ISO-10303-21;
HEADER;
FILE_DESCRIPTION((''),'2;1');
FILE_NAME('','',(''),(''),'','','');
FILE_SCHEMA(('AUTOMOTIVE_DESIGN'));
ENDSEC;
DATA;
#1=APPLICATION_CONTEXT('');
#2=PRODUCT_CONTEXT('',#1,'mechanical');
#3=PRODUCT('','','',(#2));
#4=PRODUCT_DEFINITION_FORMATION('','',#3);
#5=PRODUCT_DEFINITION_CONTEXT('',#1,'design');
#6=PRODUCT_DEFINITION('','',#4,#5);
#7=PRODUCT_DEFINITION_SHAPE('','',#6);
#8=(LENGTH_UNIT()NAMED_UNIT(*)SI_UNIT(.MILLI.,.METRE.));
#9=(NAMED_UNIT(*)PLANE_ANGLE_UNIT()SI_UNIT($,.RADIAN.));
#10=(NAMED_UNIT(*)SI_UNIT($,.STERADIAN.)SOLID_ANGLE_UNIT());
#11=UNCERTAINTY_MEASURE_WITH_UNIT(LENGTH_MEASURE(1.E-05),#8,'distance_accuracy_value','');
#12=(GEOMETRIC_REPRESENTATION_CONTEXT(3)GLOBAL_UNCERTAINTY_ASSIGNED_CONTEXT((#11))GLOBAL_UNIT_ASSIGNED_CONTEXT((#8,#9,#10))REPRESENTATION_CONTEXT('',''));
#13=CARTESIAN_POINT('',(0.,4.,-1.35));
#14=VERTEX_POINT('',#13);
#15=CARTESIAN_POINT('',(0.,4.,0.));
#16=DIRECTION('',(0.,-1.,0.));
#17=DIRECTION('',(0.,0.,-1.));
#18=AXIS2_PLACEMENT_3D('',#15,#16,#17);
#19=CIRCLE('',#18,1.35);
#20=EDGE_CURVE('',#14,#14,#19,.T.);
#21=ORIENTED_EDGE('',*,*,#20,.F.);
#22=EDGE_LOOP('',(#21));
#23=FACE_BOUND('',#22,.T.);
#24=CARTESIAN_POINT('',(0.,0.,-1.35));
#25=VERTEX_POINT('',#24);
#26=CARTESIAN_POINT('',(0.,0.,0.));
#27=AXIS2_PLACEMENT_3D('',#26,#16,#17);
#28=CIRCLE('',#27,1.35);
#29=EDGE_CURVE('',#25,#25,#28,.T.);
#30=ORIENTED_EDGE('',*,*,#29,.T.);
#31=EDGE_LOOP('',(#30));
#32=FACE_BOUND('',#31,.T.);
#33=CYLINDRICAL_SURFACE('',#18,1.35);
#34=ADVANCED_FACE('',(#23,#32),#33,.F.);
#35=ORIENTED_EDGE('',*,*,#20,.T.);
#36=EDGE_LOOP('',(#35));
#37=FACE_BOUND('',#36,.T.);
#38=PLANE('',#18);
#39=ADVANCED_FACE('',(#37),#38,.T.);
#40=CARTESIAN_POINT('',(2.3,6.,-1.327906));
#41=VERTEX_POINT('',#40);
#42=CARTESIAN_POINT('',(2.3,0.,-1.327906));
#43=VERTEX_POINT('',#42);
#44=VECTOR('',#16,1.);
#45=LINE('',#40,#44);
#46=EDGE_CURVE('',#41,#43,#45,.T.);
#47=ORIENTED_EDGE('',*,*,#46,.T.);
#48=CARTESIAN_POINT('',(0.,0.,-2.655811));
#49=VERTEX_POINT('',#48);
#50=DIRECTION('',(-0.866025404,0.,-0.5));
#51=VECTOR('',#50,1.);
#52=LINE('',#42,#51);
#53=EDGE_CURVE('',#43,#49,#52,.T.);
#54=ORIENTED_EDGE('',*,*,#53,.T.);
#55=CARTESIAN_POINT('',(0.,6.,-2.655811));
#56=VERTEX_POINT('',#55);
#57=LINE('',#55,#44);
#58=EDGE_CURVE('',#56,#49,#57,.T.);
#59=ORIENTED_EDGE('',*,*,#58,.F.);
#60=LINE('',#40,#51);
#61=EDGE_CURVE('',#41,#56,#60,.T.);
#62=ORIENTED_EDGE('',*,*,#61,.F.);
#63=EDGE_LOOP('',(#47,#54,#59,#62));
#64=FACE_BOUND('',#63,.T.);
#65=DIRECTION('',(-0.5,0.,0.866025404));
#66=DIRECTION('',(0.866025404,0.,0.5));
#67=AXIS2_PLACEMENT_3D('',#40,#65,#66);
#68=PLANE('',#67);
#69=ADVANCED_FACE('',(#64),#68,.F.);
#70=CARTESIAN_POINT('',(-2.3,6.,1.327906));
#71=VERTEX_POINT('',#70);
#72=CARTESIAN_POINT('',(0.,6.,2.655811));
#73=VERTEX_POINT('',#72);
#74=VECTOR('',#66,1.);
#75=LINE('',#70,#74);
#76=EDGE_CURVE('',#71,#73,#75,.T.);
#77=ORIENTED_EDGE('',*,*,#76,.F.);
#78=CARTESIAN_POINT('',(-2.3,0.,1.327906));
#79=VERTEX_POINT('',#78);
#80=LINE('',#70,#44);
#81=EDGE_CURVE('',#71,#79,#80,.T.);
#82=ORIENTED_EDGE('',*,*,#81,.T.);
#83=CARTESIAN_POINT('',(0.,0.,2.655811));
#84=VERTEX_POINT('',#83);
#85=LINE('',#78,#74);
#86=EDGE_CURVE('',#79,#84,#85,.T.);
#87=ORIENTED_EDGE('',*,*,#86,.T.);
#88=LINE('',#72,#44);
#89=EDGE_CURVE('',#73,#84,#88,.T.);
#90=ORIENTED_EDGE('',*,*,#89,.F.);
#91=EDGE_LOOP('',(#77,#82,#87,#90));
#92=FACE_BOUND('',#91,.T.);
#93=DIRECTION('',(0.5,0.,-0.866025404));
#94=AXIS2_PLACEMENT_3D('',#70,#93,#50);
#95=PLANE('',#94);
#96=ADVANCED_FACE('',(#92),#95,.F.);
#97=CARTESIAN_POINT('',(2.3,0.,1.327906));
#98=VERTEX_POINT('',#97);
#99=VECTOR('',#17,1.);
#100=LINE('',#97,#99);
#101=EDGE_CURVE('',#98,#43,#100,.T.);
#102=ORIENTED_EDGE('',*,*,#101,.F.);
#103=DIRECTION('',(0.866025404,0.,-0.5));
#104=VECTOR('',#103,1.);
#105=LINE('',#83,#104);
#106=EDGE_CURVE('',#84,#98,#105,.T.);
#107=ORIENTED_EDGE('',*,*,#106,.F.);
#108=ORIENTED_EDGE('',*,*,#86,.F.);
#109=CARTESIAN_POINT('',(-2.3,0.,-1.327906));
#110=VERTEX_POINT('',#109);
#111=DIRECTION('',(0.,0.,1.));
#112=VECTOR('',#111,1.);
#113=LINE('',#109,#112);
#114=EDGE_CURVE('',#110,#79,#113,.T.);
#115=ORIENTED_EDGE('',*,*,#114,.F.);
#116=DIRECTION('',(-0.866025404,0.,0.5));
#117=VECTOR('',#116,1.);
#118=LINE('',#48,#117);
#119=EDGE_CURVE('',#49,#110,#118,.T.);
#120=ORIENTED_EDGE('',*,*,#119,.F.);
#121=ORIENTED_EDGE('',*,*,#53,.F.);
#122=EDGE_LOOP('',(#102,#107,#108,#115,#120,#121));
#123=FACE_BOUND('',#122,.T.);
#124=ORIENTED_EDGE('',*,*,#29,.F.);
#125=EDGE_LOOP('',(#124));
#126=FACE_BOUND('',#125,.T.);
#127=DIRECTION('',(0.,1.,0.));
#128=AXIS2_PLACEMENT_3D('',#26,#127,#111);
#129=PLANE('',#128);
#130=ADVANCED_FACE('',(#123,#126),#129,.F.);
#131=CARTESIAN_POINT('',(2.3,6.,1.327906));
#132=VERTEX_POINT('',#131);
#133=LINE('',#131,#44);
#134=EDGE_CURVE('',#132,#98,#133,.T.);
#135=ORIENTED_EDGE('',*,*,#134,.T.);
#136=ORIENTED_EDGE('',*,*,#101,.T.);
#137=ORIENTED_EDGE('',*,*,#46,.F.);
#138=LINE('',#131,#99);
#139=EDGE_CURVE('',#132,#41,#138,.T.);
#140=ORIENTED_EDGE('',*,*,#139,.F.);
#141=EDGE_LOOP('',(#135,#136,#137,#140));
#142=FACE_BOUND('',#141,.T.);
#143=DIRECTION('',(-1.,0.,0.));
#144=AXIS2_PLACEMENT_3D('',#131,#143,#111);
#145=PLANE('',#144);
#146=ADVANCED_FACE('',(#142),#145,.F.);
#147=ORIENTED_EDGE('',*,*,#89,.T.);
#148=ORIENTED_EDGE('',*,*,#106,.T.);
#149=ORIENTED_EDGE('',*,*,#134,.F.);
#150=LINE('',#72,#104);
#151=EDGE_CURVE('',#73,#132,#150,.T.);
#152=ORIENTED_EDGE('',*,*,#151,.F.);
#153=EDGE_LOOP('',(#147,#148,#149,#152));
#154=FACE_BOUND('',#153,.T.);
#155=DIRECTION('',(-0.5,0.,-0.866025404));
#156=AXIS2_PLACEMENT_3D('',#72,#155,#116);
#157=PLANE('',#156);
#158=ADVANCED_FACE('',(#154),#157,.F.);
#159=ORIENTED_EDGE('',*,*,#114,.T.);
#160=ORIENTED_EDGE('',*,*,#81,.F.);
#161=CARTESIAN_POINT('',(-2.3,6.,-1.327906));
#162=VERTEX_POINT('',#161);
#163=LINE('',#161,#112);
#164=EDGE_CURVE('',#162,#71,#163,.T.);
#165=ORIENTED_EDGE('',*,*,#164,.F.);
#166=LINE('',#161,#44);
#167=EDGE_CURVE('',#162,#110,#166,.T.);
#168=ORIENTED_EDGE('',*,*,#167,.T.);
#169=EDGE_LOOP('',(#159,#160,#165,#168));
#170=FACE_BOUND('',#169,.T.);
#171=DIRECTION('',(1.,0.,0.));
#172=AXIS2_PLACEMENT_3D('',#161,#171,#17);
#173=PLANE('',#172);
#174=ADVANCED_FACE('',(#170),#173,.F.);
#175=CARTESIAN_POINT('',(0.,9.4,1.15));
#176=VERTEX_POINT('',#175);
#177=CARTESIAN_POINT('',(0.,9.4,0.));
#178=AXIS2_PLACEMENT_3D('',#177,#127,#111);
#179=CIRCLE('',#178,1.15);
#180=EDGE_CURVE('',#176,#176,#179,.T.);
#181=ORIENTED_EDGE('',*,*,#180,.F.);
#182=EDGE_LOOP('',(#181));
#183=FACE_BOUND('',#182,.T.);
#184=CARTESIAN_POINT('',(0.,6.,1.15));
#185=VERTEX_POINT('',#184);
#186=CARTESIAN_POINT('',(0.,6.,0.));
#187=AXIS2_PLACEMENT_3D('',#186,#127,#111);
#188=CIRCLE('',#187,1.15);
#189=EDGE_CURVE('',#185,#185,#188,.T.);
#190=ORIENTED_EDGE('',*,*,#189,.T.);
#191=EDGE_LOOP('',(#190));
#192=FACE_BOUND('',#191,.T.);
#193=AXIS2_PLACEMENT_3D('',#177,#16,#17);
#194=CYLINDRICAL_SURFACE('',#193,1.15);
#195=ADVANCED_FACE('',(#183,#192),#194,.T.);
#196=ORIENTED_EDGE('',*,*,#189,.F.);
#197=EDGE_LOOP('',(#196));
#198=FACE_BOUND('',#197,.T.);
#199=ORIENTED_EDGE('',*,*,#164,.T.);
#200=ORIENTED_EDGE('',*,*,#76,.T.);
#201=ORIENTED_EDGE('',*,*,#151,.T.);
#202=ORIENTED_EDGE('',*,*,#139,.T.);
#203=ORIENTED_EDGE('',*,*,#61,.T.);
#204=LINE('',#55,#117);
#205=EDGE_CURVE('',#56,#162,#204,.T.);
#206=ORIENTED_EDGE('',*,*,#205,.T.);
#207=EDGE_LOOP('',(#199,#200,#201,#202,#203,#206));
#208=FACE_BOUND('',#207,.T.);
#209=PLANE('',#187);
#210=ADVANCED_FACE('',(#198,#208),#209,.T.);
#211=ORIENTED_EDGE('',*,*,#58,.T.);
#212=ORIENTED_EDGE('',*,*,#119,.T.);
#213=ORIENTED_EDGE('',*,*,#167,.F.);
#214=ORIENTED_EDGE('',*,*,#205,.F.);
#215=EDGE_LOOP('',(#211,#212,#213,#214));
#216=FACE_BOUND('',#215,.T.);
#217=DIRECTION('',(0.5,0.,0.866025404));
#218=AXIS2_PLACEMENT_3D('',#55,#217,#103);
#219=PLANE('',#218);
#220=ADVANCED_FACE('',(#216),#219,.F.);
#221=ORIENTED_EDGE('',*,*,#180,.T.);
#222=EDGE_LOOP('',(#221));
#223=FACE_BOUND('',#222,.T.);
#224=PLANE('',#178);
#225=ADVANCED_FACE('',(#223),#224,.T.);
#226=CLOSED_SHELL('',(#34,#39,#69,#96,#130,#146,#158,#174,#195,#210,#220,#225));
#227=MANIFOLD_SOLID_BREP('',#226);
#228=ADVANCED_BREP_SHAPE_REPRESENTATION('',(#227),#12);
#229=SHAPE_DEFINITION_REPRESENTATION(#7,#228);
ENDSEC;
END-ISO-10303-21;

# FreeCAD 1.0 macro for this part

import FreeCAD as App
import Part
import Sketcher
Q = App.Units.Quantity


def add_polygon(sketch, points):
    """Adds a closed chain of lines whose ends are joined by coincident constraints."""
    first, n = sketch.GeometryCount, len(points)
    for a, b in zip(points, points[1:] + points[:1]):
        sketch.addGeometry(Part.LineSegment(App.Vector(*a, 0), App.Vector(*b, 0)), False)
    for i in range(n):
        sketch.addConstraint(Sketcher.Constraint("Coincident", first + i, 2, first + (i + 1) % n, 1))

doc = App.newDocument("Part")
body = doc.addObject("PartDesign::Body", "Body")

# Sketch on XZ plane
sketch1 = body.newObject("Sketcher::SketchObject", "Sketch")
sketch1.AttachmentSupport = (doc.getObject("XZ_Plane"), [""])
sketch1.MapMode = "FlatFace"
add_polygon(sketch1, [(0, -2.7), (-2.3, -1.3), (-2.3, 1.3), (0, 2.7), (2.3, 1.3), (2.3, -1.3)])  # lines 0-5
sketch1.addConstraint([
    Sketcher.Constraint("Vertical", 1),
    Sketcher.Constraint("Vertical", 4),
    Sketcher.Constraint("Symmetric", 0, 2, 3, 2, -1, 1),
    Sketcher.Constraint("Symmetric", 2, 2, 5, 2, -1, 1),
    Sketcher.Constraint("PointOnObject", 2, 2, -2),
    Sketcher.Constraint("Parallel", 2, 5),
    Sketcher.Constraint("Horizontal", 1, 2, 3, 2),
    Sketcher.Constraint("Angle", 0, Q("150 deg")),
    Sketcher.Constraint("DistanceX", 0, 2, -1, 1, Q("2.3 mm")),
    Sketcher.Constraint("DistanceY", 1, 1, 1, 2, Q("2.655811 mm")),
])
pad1 = body.newObject("PartDesign::Pad", "Pad")
pad1.Profile = sketch1
pad1.Length = 6
pad1.Reversed = True

# Sketch on XZ plane
sketch2 = body.newObject("Sketcher::SketchObject", "Sketch001")
sketch2.AttachmentSupport = (doc.getObject("XZ_Plane"), [""])
sketch2.MapMode = "FlatFace"
sketch2.AttachmentOffset = App.Placement(App.Vector(0, 0, -6), App.Rotation())
sketch2.addGeometry(Part.Circle(App.Vector(0, 0, 0), App.Vector(0, 0, 1), 1.1), False)
sketch2.addConstraint([
    Sketcher.Constraint("Coincident", 0, 3, -1, 1),
    Sketcher.Constraint("Diameter", 0, Q("2.3 mm")),
])
pad2 = body.newObject("PartDesign::Pad", "Pad001")
pad2.Profile = sketch2
pad2.Length = 3.4
pad2.Reversed = True

# Sketch on XZ plane
sketch3 = body.newObject("Sketcher::SketchObject", "Sketch002")
sketch3.AttachmentSupport = (doc.getObject("XZ_Plane"), [""])
sketch3.MapMode = "FlatFace"
sketch3.addGeometry(Part.Circle(App.Vector(0, 0, 0), App.Vector(0, 0, 1), 1.4), False)
sketch3.addConstraint([
    Sketcher.Constraint("Coincident", 0, 3, -1, 1),
    Sketcher.Constraint("Diameter", 0, Q("2.7 mm")),
])
pocket1 = body.newObject("PartDesign::Pocket", "Pocket")
pocket1.Profile = sketch3
pocket1.Length = 4

doc.recompute()
